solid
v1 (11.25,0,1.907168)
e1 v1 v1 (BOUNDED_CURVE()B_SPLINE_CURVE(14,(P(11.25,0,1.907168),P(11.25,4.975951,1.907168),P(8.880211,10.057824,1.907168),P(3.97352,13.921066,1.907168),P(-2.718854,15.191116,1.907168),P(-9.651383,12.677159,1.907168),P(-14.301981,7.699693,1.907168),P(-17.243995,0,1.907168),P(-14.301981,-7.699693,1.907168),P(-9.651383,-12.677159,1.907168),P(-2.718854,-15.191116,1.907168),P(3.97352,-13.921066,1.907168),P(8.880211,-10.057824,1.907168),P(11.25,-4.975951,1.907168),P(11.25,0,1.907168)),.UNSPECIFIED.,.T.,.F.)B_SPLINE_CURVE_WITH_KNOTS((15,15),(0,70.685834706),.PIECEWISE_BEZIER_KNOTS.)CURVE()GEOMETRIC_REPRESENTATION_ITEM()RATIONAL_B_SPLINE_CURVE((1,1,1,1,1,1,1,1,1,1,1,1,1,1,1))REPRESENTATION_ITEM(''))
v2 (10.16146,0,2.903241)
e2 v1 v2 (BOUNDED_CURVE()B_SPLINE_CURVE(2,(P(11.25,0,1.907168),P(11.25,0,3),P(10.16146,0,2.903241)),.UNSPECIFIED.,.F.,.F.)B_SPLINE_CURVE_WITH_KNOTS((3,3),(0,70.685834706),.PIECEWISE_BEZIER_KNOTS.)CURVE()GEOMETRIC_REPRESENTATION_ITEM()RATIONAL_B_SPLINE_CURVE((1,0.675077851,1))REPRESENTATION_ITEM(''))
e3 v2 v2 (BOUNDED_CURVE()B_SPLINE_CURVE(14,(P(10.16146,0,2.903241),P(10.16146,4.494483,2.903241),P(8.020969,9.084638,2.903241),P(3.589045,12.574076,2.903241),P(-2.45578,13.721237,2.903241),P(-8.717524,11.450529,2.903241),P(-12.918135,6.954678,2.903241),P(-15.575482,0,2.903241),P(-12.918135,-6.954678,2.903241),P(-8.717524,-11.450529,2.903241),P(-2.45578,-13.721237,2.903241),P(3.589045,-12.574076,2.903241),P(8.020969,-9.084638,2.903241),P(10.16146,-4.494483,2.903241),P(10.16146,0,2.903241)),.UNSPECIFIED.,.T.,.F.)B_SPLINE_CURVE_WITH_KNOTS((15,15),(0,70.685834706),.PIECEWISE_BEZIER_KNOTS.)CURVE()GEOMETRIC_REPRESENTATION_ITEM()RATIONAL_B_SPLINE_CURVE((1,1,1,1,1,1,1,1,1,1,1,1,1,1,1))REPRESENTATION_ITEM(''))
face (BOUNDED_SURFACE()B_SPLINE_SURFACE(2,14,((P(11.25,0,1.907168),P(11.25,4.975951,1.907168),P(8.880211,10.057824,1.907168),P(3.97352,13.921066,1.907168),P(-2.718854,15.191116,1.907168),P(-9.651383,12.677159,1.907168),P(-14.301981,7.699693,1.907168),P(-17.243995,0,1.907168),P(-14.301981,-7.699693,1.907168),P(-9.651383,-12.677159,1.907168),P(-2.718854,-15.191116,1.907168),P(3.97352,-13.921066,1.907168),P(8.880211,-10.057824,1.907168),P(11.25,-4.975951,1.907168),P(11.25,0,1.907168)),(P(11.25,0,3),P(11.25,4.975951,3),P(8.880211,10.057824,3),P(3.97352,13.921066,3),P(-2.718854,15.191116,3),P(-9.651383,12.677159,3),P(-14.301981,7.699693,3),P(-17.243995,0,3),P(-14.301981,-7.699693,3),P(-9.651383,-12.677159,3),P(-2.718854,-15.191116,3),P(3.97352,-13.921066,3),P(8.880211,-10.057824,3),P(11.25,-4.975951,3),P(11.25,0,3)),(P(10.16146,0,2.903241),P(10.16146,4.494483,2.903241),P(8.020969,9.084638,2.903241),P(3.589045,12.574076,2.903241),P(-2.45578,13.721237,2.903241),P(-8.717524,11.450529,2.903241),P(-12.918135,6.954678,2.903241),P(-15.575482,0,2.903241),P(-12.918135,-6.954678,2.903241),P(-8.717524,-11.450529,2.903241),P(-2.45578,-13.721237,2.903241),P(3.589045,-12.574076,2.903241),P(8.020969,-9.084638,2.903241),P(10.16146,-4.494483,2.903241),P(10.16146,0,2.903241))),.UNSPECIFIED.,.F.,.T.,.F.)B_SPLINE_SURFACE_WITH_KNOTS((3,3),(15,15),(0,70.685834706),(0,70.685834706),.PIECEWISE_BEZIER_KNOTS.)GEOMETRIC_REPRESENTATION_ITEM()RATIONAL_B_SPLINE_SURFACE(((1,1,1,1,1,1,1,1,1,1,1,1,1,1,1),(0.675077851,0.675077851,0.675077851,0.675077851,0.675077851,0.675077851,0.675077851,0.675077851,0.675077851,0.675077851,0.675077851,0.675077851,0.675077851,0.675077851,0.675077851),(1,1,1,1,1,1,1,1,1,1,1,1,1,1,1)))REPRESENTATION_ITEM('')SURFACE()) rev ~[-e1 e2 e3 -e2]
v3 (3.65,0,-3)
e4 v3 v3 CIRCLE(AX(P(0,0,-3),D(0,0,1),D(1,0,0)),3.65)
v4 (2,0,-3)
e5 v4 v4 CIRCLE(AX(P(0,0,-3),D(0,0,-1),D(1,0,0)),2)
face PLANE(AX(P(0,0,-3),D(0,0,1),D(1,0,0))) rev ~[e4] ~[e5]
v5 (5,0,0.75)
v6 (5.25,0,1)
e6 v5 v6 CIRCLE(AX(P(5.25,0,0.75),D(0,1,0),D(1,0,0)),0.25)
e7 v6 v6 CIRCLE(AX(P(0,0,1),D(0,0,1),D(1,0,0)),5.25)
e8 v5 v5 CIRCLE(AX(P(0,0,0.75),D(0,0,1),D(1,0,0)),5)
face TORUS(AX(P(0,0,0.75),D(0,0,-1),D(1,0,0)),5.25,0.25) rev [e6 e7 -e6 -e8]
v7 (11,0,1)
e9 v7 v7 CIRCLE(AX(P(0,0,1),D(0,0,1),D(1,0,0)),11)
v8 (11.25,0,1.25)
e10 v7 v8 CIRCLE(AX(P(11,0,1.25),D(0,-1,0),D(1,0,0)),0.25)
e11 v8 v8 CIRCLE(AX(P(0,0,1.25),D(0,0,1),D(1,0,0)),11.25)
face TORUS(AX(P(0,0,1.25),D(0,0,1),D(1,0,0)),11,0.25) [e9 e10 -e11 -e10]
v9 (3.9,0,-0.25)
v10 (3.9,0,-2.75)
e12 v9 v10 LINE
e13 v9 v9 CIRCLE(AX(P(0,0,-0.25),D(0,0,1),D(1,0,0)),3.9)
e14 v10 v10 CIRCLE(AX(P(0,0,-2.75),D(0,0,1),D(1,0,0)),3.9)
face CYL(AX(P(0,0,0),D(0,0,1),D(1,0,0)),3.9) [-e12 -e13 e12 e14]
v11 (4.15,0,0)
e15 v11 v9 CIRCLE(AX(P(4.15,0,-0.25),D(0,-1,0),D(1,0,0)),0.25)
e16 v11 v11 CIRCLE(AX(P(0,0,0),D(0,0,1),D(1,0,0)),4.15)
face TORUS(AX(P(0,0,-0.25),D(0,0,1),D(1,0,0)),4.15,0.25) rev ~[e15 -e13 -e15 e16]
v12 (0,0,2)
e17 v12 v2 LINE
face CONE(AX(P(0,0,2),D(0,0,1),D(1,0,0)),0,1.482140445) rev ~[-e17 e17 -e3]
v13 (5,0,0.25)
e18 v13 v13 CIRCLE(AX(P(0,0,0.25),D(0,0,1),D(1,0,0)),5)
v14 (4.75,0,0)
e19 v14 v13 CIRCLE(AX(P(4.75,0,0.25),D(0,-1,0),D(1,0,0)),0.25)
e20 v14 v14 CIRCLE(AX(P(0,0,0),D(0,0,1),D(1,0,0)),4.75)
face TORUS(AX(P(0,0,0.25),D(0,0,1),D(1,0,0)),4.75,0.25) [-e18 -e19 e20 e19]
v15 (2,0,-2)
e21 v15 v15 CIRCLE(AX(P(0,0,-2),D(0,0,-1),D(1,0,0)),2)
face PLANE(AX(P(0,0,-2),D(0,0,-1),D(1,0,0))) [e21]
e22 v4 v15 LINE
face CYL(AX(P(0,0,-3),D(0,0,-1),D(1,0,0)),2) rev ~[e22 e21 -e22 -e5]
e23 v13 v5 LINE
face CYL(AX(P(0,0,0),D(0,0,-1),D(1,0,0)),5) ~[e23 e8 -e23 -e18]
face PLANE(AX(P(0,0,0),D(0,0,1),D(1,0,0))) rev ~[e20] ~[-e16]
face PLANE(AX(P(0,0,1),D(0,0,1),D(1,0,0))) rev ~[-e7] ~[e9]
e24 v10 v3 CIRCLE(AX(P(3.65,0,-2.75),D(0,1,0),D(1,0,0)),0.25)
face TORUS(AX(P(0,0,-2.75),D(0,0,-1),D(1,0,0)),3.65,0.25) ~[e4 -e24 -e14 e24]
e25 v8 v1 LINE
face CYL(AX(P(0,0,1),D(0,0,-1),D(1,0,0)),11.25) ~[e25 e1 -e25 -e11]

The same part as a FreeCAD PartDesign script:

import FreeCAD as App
import Part
import Sketcher
Q = App.Units.Quantity


def edges_at(feature, points):
    """Names of the edges that pass closest to the given points."""
    edges = feature.Shape.Edges
    near = lambda p: min(range(len(edges)), key=lambda i: edges[i].distToShape(Part.Vertex(*p))[0])
    return sorted({f"Edge{near(p) + 1}" for p in points})


def add_polygon(sketch, points):
    """Adds a closed chain of lines whose ends are joined by coincident constraints."""
    first, n = sketch.GeometryCount, len(points)
    for a, b in zip(points, points[1:] + points[:1]):
        sketch.addGeometry(Part.LineSegment(App.Vector(*a, 0), App.Vector(*b, 0)), False)
    for i in range(n):
        sketch.addConstraint(Sketcher.Constraint("Coincident", first + i, 2, first + (i + 1) % n, 1))

doc = App.newDocument("Part")
body = doc.addObject("PartDesign::Body", "Body")

sketch1 = body.newObject("Sketcher::SketchObject", "Sketch")
sketch1.AttachmentSupport = (doc.getObject("XY_Plane"), [""])
sketch1.MapMode = "FlatFace"
sketch1.addGeometry(Part.Circle(App.Vector(0, 0, 0), App.Vector(0, 0, 1), 3.9), False)
sketch1.addConstraint([
    Sketcher.Constraint("Coincident", 0, 3, -1, 1),
    Sketcher.Constraint("Diameter", 0, Q("7.8 mm")),
])
pad1 = body.newObject("PartDesign::Pad", "Pad")
pad1.Profile = sketch1
pad1.Length = 3
pad1.Reversed = True

sketch2 = body.newObject("Sketcher::SketchObject", "Sketch001")
sketch2.AttachmentSupport = (doc.getObject("XY_Plane"), [""])
sketch2.MapMode = "FlatFace"
sketch2.addGeometry(Part.Circle(App.Vector(0, 0, 0), App.Vector(0, 0, 1), 5), False)
sketch2.addConstraint([
    Sketcher.Constraint("Coincident", 0, 3, -1, 1),
    Sketcher.Constraint("Diameter", 0, Q("10 mm")),
])
pad2 = body.newObject("PartDesign::Pad", "Pad001")
pad2.Profile = sketch2
pad2.Length = 1

sketch3 = body.newObject("Sketcher::SketchObject", "Sketch002")
sketch3.AttachmentSupport = (doc.getObject("XY_Plane"), [""])
sketch3.MapMode = "FlatFace"
sketch3.AttachmentOffset = App.Placement(App.Vector(0, 0, 1), App.Rotation())
sketch3.addGeometry(Part.Circle(App.Vector(0, 0, 0), App.Vector(0, 0, 1), 11), False)
sketch3.addConstraint([
    Sketcher.Constraint("Coincident", 0, 3, -1, 1),
    Sketcher.Constraint("Diameter", 0, Q("22.5 mm")),
])
pad3 = body.newObject("PartDesign::Pad", "Pad002")
pad3.Profile = sketch3
pad3.Length = 2

sketch4 = body.newObject("Sketcher::SketchObject", "Sketch003")
sketch4.AttachmentSupport = (doc.getObject("XZ_Plane"), [""])
sketch4.MapMode = "FlatFace"
add_polygon(sketch4, [(0, 2), (11.2, 3), (0, 3)])
sketch4.addConstraint([
    Sketcher.Constraint("Horizontal", 1),
    Sketcher.Constraint("Vertical", 2),
    Sketcher.Constraint("PointOnObject", 1, 2, -2),
    Sketcher.Constraint("DistanceY", 2, 2, 2, 1, Q("1 mm")),
    Sketcher.Constraint("DistanceY", -1, 1, 0, 2, Q("3 mm")),
    Sketcher.Constraint("DistanceX", 1, 2, 1, 1, Q("11.25 mm")),
])
groove = body.newObject("PartDesign::Groove", "Groove")
groove.Profile = sketch4
groove.ReferenceAxis = (sketch4, ["V_Axis"])
groove.Angle = 360
doc.recompute()

fillet = body.newObject("PartDesign::Fillet", "Fillet")
fillet.Base = (groove, edges_at(groove, [(-11.25, 0, 3)]))
fillet.Radius = 1

sketch5 = body.newObject("Sketcher::SketchObject", "Sketch004")
sketch5.AttachmentSupport = (doc.getObject("XY_Plane"), [""])
sketch5.MapMode = "FlatFace"
sketch5.AttachmentOffset = App.Placement(App.Vector(0, 0, -3), App.Rotation())
sketch5.addGeometry(Part.Circle(App.Vector(0, 0, 0), App.Vector(0, 0, 1), 2), False)
sketch5.addConstraint([
    Sketcher.Constraint("Coincident", 0, 3, -1, 1),
    Sketcher.Constraint("Diameter", 0, Q("4 mm")),
])
pocket1 = body.newObject("PartDesign::Pocket", "Pocket")
pocket1.Profile = sketch5
pocket1.Length = 1
pocket1.Reversed = True
doc.recompute()

fillet2 = body.newObject("PartDesign::Fillet", "Fillet001")
fillet2.Base = (pocket1, edges_at(pocket1, [(-3.9, 0, -3)]))
fillet2.Radius = 0.25
doc.recompute()

fillet3 = body.newObject("PartDesign::Fillet", "Fillet002")
fillet3.Base = (fillet2, edges_at(fillet2, [(-5, 0, 0)]))
fillet3.Radius = 0.25
doc.recompute()

fillet4 = body.newObject("PartDesign::Fillet", "Fillet003")
fillet4.Base = (fillet3, edges_at(fillet3, [(-3.9, 0, 0), (-11.25, 0, 1), (-5, 0, 1)]))
fillet4.Radius = 0.25

doc.recompute()
